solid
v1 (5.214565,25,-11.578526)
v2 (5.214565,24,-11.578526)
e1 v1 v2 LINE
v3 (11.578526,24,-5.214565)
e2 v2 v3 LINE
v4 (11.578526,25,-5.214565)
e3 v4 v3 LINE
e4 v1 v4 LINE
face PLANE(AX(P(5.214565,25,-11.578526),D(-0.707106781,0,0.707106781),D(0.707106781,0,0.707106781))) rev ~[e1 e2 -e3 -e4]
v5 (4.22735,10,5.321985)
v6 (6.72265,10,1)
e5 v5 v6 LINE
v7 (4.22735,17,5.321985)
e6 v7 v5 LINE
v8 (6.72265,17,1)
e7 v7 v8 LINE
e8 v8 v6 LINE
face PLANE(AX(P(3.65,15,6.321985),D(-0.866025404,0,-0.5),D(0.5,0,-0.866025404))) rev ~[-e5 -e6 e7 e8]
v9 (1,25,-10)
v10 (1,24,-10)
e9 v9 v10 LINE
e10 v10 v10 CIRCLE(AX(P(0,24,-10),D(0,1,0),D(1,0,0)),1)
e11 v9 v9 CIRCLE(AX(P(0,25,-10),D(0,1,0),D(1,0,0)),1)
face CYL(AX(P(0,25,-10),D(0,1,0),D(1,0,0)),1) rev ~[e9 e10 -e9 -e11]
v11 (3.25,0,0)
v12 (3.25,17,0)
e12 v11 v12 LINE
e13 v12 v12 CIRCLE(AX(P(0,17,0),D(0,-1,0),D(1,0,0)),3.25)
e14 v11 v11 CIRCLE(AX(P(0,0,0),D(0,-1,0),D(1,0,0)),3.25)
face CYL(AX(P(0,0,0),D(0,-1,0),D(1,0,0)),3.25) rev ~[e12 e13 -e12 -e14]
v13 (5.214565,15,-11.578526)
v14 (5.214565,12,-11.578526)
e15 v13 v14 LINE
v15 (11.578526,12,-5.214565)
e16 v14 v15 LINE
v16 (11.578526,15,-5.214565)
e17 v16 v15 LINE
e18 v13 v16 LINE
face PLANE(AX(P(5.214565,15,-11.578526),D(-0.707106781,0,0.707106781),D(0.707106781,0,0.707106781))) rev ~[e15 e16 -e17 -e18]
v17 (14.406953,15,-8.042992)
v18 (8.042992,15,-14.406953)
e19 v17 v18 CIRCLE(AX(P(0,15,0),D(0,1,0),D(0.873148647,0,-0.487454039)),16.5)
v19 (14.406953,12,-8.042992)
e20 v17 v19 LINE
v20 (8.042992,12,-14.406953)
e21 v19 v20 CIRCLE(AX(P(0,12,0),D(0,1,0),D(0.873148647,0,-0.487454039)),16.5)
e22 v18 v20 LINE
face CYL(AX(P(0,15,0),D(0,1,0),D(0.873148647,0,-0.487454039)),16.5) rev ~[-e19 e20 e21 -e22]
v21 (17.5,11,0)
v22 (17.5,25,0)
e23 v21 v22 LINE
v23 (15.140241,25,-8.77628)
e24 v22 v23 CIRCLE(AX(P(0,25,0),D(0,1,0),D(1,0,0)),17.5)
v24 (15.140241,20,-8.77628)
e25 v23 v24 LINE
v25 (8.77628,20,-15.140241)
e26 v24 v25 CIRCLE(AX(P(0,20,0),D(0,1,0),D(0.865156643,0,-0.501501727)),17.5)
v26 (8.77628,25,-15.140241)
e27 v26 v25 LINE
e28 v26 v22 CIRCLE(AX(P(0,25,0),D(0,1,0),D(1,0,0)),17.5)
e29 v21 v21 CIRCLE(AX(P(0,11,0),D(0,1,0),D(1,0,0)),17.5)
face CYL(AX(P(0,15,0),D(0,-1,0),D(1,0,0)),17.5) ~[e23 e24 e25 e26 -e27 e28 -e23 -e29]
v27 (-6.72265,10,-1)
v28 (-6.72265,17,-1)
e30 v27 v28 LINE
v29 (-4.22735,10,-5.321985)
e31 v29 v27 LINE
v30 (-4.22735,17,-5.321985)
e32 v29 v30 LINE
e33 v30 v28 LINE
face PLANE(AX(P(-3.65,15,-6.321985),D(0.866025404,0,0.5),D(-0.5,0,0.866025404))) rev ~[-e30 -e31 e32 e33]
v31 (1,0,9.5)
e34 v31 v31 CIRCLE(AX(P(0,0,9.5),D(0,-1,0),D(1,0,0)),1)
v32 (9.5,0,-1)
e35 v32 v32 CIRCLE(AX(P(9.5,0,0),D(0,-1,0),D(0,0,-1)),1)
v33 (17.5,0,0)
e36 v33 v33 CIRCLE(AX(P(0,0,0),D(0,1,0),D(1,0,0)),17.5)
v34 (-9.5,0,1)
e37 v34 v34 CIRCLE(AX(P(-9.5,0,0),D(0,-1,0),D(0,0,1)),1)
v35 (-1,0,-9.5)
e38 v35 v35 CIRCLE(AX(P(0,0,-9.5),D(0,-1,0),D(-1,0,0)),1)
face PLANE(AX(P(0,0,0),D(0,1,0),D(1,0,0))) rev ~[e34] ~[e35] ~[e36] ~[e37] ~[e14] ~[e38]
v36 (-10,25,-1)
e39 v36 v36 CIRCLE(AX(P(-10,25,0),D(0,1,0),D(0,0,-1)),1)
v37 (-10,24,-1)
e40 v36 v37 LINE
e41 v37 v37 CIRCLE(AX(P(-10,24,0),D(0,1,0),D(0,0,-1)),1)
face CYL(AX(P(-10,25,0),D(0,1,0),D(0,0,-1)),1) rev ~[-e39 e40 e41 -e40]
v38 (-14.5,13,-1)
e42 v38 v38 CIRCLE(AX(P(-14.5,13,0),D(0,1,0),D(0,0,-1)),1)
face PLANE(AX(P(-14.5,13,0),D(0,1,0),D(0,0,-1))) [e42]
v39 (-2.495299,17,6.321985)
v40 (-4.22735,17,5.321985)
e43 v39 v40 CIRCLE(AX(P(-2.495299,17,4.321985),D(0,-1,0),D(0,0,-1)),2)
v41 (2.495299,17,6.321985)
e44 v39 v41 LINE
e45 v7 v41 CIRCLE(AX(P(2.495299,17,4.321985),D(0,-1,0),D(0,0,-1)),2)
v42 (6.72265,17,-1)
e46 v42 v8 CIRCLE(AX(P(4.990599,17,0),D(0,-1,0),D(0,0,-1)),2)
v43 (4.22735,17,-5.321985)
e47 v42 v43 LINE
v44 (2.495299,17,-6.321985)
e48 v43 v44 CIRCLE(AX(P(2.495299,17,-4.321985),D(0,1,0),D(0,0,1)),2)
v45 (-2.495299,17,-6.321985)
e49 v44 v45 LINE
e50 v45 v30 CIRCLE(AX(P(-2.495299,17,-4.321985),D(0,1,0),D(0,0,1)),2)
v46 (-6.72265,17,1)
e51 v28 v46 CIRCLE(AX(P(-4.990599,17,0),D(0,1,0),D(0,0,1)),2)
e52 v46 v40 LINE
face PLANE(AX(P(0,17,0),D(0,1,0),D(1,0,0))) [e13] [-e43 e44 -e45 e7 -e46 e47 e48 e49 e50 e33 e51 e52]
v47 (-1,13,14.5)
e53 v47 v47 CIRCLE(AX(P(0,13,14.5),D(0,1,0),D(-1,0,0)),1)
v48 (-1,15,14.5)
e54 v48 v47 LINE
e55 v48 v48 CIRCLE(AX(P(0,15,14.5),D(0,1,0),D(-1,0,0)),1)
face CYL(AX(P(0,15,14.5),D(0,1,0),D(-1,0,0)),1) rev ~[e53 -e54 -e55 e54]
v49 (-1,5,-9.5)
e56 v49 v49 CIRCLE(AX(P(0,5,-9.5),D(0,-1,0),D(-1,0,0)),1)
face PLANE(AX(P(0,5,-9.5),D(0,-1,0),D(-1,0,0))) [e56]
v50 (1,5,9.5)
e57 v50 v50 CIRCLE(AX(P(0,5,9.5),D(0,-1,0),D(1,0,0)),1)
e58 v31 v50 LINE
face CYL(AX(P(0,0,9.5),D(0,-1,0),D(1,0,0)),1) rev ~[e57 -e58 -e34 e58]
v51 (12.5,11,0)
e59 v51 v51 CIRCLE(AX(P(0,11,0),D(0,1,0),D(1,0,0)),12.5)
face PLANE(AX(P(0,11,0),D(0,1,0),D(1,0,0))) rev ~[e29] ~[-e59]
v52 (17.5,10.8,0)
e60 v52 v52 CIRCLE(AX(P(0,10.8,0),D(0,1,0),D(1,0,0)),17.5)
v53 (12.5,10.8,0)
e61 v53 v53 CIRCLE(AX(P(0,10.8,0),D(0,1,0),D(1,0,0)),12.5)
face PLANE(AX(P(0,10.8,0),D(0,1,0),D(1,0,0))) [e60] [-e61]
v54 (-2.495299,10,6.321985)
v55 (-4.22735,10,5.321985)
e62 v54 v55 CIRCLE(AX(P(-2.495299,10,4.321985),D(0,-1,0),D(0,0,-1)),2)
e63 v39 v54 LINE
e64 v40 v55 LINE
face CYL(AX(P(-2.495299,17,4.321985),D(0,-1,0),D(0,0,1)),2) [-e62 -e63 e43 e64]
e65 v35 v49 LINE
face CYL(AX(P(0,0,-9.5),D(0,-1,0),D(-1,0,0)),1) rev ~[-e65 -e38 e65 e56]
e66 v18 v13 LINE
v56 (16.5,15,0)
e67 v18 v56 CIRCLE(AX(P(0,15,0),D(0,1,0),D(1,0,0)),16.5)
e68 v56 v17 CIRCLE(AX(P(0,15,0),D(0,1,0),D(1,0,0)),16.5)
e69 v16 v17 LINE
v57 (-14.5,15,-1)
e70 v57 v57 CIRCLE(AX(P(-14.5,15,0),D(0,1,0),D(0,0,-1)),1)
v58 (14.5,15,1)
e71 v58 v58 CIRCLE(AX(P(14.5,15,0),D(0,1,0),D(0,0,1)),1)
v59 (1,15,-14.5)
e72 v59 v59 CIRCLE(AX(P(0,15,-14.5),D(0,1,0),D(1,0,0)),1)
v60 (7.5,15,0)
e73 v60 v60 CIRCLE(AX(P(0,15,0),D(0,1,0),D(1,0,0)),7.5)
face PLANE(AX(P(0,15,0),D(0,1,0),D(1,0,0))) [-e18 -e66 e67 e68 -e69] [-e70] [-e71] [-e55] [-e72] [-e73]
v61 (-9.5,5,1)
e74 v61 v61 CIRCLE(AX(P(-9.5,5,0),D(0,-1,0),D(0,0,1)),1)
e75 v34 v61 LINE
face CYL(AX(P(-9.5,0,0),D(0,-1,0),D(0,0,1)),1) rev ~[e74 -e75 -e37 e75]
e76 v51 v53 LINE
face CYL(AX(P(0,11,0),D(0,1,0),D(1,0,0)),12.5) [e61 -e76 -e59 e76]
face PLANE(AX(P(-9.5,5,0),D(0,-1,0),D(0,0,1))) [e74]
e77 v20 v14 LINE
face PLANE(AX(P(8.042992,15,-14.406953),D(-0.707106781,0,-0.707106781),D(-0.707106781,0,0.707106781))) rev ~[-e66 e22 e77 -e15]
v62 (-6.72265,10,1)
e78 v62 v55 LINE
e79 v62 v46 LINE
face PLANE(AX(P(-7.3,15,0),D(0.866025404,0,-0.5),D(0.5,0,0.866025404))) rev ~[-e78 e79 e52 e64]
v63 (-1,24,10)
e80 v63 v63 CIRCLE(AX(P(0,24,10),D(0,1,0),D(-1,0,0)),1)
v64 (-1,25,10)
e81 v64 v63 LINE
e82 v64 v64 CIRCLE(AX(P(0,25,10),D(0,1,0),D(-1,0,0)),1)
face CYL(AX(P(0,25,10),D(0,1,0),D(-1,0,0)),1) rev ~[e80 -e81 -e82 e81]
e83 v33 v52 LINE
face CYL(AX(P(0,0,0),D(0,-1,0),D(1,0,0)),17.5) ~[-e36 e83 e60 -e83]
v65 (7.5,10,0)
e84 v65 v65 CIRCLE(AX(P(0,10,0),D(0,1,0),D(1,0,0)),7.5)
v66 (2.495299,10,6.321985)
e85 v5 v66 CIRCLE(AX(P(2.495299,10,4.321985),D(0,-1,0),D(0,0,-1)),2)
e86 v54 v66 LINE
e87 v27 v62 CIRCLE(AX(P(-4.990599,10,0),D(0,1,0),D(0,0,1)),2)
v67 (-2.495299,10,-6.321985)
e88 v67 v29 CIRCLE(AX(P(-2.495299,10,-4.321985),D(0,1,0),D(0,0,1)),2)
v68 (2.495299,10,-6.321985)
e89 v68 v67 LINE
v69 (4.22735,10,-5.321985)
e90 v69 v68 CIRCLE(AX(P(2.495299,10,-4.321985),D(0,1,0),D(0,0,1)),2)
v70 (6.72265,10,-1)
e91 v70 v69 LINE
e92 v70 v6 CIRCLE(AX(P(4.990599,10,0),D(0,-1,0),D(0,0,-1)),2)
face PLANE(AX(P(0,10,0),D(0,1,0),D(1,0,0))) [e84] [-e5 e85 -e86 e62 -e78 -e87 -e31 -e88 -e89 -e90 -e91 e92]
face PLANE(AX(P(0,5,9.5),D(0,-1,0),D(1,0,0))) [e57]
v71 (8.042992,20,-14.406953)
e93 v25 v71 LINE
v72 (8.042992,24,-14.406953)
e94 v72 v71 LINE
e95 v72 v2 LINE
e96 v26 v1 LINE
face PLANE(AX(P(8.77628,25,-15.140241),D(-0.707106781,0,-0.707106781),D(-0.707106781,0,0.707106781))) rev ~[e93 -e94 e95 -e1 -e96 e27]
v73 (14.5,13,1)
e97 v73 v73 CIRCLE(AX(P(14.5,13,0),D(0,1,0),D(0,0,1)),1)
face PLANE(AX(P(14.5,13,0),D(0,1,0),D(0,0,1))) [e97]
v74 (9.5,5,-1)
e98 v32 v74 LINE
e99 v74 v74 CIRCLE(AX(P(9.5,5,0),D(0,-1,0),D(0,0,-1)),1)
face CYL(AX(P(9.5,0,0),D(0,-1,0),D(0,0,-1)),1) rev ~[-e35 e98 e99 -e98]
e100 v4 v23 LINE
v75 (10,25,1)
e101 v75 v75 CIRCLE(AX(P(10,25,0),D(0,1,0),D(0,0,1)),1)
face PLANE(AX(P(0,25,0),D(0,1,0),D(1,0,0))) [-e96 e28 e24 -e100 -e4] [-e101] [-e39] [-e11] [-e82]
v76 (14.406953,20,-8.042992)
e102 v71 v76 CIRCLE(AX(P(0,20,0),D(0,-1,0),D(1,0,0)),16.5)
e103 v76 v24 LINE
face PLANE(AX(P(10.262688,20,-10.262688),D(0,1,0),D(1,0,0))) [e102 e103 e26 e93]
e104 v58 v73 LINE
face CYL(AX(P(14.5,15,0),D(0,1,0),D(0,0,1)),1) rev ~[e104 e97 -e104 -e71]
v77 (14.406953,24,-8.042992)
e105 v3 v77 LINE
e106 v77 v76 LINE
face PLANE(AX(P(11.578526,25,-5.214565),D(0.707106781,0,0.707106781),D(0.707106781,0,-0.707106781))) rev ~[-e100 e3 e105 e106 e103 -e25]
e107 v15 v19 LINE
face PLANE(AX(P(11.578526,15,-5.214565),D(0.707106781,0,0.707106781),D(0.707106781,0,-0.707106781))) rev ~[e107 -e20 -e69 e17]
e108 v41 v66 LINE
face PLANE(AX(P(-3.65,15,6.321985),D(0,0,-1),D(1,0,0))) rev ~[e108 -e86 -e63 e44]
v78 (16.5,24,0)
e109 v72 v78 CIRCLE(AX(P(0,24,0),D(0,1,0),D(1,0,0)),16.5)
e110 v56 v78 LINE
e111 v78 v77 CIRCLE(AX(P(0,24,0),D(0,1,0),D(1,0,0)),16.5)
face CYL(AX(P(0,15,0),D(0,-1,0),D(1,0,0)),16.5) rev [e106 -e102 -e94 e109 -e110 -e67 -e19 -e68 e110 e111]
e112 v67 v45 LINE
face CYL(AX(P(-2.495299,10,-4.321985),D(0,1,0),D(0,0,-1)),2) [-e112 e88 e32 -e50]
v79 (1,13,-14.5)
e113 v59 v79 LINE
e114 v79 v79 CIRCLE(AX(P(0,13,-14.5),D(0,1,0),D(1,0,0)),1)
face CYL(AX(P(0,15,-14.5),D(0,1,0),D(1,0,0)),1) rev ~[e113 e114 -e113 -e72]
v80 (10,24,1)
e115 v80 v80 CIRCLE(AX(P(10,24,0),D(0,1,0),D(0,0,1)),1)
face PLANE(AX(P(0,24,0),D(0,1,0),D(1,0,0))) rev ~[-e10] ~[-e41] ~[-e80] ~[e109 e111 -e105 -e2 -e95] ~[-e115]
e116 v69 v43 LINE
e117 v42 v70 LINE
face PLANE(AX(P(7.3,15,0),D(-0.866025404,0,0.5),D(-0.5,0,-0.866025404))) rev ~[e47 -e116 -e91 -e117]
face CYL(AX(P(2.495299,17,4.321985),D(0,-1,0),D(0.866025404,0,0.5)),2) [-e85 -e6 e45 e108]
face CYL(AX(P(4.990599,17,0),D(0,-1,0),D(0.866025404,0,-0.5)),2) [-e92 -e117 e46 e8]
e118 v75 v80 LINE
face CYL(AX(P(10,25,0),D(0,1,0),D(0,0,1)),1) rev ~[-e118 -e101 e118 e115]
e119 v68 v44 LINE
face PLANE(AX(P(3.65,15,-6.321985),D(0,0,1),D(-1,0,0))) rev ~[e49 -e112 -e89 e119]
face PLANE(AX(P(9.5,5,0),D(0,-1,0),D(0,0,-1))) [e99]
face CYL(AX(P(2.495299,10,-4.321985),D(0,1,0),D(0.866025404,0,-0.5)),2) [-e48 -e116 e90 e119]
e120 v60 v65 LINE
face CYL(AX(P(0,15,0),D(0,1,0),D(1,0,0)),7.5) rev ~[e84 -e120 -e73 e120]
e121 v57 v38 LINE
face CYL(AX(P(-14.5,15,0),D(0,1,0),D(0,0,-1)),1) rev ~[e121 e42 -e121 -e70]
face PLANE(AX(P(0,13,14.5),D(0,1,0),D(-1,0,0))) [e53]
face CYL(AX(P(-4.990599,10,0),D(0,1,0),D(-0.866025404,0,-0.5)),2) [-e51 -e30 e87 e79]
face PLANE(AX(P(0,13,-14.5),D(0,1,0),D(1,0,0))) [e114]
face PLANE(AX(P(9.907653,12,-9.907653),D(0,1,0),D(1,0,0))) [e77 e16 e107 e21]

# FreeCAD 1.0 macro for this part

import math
import FreeCAD as App
import Part
import Sketcher
Q = App.Units.Quantity


def edges_at(feature, points):
    """Names of the edges that pass closest to the given points."""
    edges = feature.Shape.Edges
    near = lambda p: min(range(len(edges)), key=lambda i: edges[i].distToShape(Part.Vertex(*p))[0])
    return sorted({f"Edge{near(p) + 1}" for p in points})


def add_polygon(sketch, points):
    """Adds a closed chain of lines whose ends are joined by coincident constraints."""
    first, n = sketch.GeometryCount, len(points)
    for a, b in zip(points, points[1:] + points[:1]):
        sketch.addGeometry(Part.LineSegment(App.Vector(*a, 0), App.Vector(*b, 0)), False)
    for i in range(n):
        sketch.addConstraint(Sketcher.Constraint("Coincident", first + i, 2, first + (i + 1) % n, 1))

doc = App.newDocument("Part")
body = doc.addObject("PartDesign::Body", "Body")

# Sketch on XZ plane
sketch1 = body.newObject("Sketcher::SketchObject", "Sketch")
sketch1.AttachmentSupport = (doc.getObject("XZ_Plane"), [""])
sketch1.MapMode = "FlatFace"
sketch1.addGeometry(Part.Circle(App.Vector(0, 0, 0), App.Vector(0, 0, 1), 18), False)
sketch1.addConstraint([
    Sketcher.Constraint("Coincident", 0, 3, -1, 1),
    Sketcher.Constraint("Diameter", 0, Q("35 mm")),
])
pad1 = body.newObject("PartDesign::Pad", "Pad")
pad1.Profile = sketch1
pad1.Length = 15
pad1.Reversed = True

# Sketch on XZ plane
sketch2 = body.newObject("Sketcher::SketchObject", "Sketch001")
sketch2.AttachmentSupport = (doc.getObject("XZ_Plane"), [""])
sketch2.MapMode = "FlatFace"
sketch2.AttachmentOffset = App.Placement(App.Vector(0, 0, -15), App.Rotation())
add_polygon(sketch2, [(7, 0), (4, -6), (-4, -6), (-7, 0), (-4, 6), (4, 6)])  # lines 0-5
sketch2.addConstraint([
    Sketcher.Constraint("Horizontal", 1),
    Sketcher.Constraint("Horizontal", 4),
    Sketcher.Constraint("Symmetric", 0, 2, 3, 2, -1, 1),
    Sketcher.Constraint("Symmetric", 2, 2, 5, 2, -1, 1),
    Sketcher.Constraint("PointOnObject", 2, 2, -1),
    Sketcher.Constraint("Parallel", 2, 5),
    Sketcher.Constraint("Vertical", 1, 2, 3, 2),
    Sketcher.Constraint("Angle", 0, Q("-120 deg")),
    Sketcher.Constraint("DistanceX", 1, 2, 1, 1, Q("7.3 mm")),
    Sketcher.Constraint("Distance", 0, Q("7.3 mm")),
])
pad2 = body.newObject("PartDesign::Pad", "Pad001")
pad2.Profile = sketch2
pad2.Length = 2
pad2.Reversed = True

# Sketch on XZ plane
sketch3 = body.newObject("Sketcher::SketchObject", "Sketch002")
sketch3.AttachmentSupport = (doc.getObject("XZ_Plane"), [""])
sketch3.MapMode = "FlatFace"
sketch3.addGeometry(Part.Circle(App.Vector(0, 0, 0), App.Vector(0, 0, 1), 3.2), False)
sketch3.addConstraint([
    Sketcher.Constraint("Coincident", 0, 3, -1, 1),
    Sketcher.Constraint("Diameter", 0, Q("6.5 mm")),
])
pocket1 = body.newObject("PartDesign::Pocket", "Pocket")
pocket1.Profile = sketch3
pocket1.Type = "UpToFirst"

# Sketch on XZ plane
sketch4 = body.newObject("Sketcher::SketchObject", "Sketch003")
sketch4.AttachmentSupport = (doc.getObject("XZ_Plane"), [""])
sketch4.MapMode = "FlatFace"
sketch4.addGeometry(Part.Circle(App.Vector(0, 9.5, 0), App.Vector(0, 0, 1), 1), False)
sketch4.addConstraint([
    Sketcher.Constraint("PointOnObject", 0, 3, -2),
    Sketcher.Constraint("Diameter", 0, Q("2 mm")),
    Sketcher.Constraint("DistanceY", -1, 1, 0, 3, Q("9.5 mm")),
])
pocket2 = body.newObject("PartDesign::Pocket", "Pocket001")
pocket2.Profile = sketch4
pocket2.Length = 5
doc.recompute()

polarpattern = body.newObject("PartDesign::PolarPattern", "PolarPattern")
polarpattern.Originals = [pocket2]
polarpattern.Axis = (doc.getObject("Y_Axis"), [""])
polarpattern.Angle = 360
polarpattern.Occurrences = 4
body.Tip = polarpattern

# Sketch on XZ plane
sketch5 = body.newObject("Sketcher::SketchObject", "Sketch004")
sketch5.AttachmentSupport = (doc.getObject("XZ_Plane"), [""])
sketch5.MapMode = "FlatFace"
sketch5.AttachmentOffset = App.Placement(App.Vector(0, 0, -15), App.Rotation())
sketch5.addGeometry(Part.Circle(App.Vector(0, -14.5, 0), App.Vector(0, 0, 1), 1), False)
sketch5.addConstraint([
    Sketcher.Constraint("PointOnObject", 0, 3, -2),
    Sketcher.Constraint("Diameter", 0, Q("2 mm")),
    Sketcher.Constraint("DistanceY", 0, 3, -1, 1, Q("14.5 mm")),
])
pocket3 = body.newObject("PartDesign::Pocket", "Pocket002")
pocket3.Profile = sketch5
pocket3.Length = 2
pocket3.Reversed = True
doc.recompute()

polarpattern2 = body.newObject("PartDesign::PolarPattern", "PolarPattern001")
polarpattern2.Originals = [pocket3]
polarpattern2.Axis = (doc.getObject("Y_Axis"), [""])
polarpattern2.Angle = 360
polarpattern2.Occurrences = 4
body.Tip = polarpattern2

# Sketch on XZ plane
sketch6 = body.newObject("Sketcher::SketchObject", "Sketch005")
sketch6.AttachmentSupport = (doc.getObject("XZ_Plane"), [""])
sketch6.MapMode = "FlatFace"
sketch6.AttachmentOffset = App.Placement(App.Vector(0, 0, -15), App.Rotation())
sketch6.addGeometry(Part.Circle(App.Vector(0, 0, 0), App.Vector(0, 0, 1), 8), False)  # 0
add_polygon(sketch6, [(4, -6), (7, 0), (4, 6), (-4, 6), (-7, 0), (-4, -6)])  # lines 1-6
sketch6.addConstraint([
    Sketcher.Constraint("Horizontal", 3),
    Sketcher.Constraint("Horizontal", 6),
    Sketcher.Constraint("Coincident", 0, 3, -1, 1),
    Sketcher.Constraint("Symmetric", 1, 2, 4, 2, -1, 1),
    Sketcher.Constraint("Symmetric", 2, 2, 5, 2, -1, 1),
    Sketcher.Constraint("PointOnObject", 1, 2, -1),
    Sketcher.Constraint("Parallel", 1, 4),
    Sketcher.Constraint("Vertical", 3, 2, 5, 2),
    Sketcher.Constraint("Diameter", 0, Q("15 mm")),
    Sketcher.Constraint("Angle", 1, Q("60 deg")),
    Sketcher.Constraint("DistanceX", 3, 2, 3, 1, Q("7.3 mm")),
    Sketcher.Constraint("Distance", 1, Q("7.3 mm")),
])
pocket4 = body.newObject("PartDesign::Pocket", "Pocket003")
pocket4.Profile = sketch6
pocket4.Length = 5
pocket4.Reversed = True

# Sketch on XZ plane
sketch7 = body.newObject("Sketcher::SketchObject", "Sketch006")
sketch7.AttachmentSupport = (doc.getObject("XZ_Plane"), [""])
sketch7.MapMode = "FlatFace"
sketch7.AttachmentOffset = App.Placement(App.Vector(0, 0, -11), App.Rotation())
sketch7.addGeometry([
    Part.Circle(App.Vector(0, 0, 0), App.Vector(0, 0, 1), 18),
    Part.Circle(App.Vector(0, 0, 0), App.Vector(0, 0, 1), 12),
], False)
sketch7.addConstraint([
    Sketcher.Constraint("Coincident", 0, 3, -1, 1),
    Sketcher.Constraint("Coincident", 1, 3, -1, 1),
    Sketcher.Constraint("Diameter", 0, Q("35 mm")),
    Sketcher.Constraint("Diameter", 1, Q("25 mm")),
])
pocket5 = body.newObject("PartDesign::Pocket", "Pocket004")
pocket5.Profile = sketch7
pocket5.Length = 0.2
pocket5.Reversed = True
doc.recompute()

fillet = body.newObject("PartDesign::Fillet", "Fillet")
fillet.Base = (pocket5, edges_at(pocket5, [
    (-7.3, 13.5, 0),
    (-3.65, 13.5, 6.322),
    (3.65, 13.5, 6.322),
    (7.3, 13.5, 0),
    (3.65, 13.5, -6.322),
    (-3.65, 13.5, -6.322),
]))
fillet.Radius = 2

# Sketch on XZ plane
sketch8 = body.newObject("Sketcher::SketchObject", "Sketch007")
sketch8.AttachmentSupport = (doc.getObject("XZ_Plane"), [""])
sketch8.MapMode = "FlatFace"
sketch8.AttachmentOffset = App.Placement(App.Vector(0, 0, -15), App.Rotation())
sketch8.addGeometry([
    Part.LineSegment(App.Vector(8, -14.4, 0), App.Vector(5.2, -11.6, 0)),
    Part.LineSegment(App.Vector(5.2, -11.6, 0), App.Vector(11.6, -5.2, 0)),
    Part.LineSegment(App.Vector(11.6, -5.2, 0), App.Vector(14.4, -8, 0)),
    Part.ArcOfCircle(Part.Circle(App.Vector(0, 0, 0), App.Vector(0, 0, 1), 16.5), math.radians(-61), math.radians(-29)),
], False)
sketch8.addConstraint([
    Sketcher.Constraint("Coincident", 0, 2, 1, 1),
    Sketcher.Constraint("Coincident", 1, 2, 2, 1),
    Sketcher.Constraint("Coincident", 2, 2, 3, 2),
    Sketcher.Constraint("Coincident", 3, 1, 0, 1),
    Sketcher.Constraint("Coincident", 3, 3, -1, 1),
    Sketcher.Constraint("Perpendicular", 0, 1),
    Sketcher.Constraint("Perpendicular", 1, 2),
    Sketcher.Constraint("Equal", 0, 2),
    Sketcher.Constraint("Radius", 3, Q("16.5 mm")),
    Sketcher.Constraint("Angle", 0, Q("135 deg")),
    Sketcher.Constraint("Distance", 0, Q("4 mm")),
    Sketcher.Constraint("Distance", 1, Q("9 mm")),
])
pocket6 = body.newObject("PartDesign::Pocket", "Pocket005")
pocket6.Profile = sketch8
pocket6.Length = 3
pocket6.Reversed = True

# Sketch on XZ plane
sketch9 = body.newObject("Sketcher::SketchObject", "Sketch008")
sketch9.AttachmentSupport = (doc.getObject("XZ_Plane"), [""])
sketch9.MapMode = "FlatFace"
sketch9.AttachmentOffset = App.Placement(App.Vector(0, 0, -15), App.Rotation())
sketch9.addGeometry([
    Part.Circle(App.Vector(0, 0, 0), App.Vector(0, 0, 1), 18),
    Part.Circle(App.Vector(0, 0, 0), App.Vector(0, 0, 1), 16),
], False)
sketch9.addConstraint([
    Sketcher.Constraint("Coincident", 0, 3, -1, 1),
    Sketcher.Constraint("Coincident", 1, 3, -1, 1),
    Sketcher.Constraint("Diameter", 0, Q("35 mm")),
    Sketcher.Constraint("Diameter", 1, Q("33 mm")),
])
pad3 = body.newObject("PartDesign::Pad", "Pad002")
pad3.Profile = sketch9
pad3.Length = 10
pad3.Reversed = True

# Sketch on XZ plane
sketch10 = body.newObject("Sketcher::SketchObject", "Sketch009")
sketch10.AttachmentSupport = (doc.getObject("XZ_Plane"), [""])
sketch10.MapMode = "FlatFace"
sketch10.AttachmentOffset = App.Placement(App.Vector(0, 0, -25), App.Rotation())
sketch10.addGeometry(Part.Circle(App.Vector(0, 0, 0), App.Vector(0, 0, 1), 16), False)
sketch10.addConstraint([
    Sketcher.Constraint("Coincident", 0, 3, -1, 1),
    Sketcher.Constraint("Diameter", 0, Q("33 mm")),
])
pad4 = body.newObject("PartDesign::Pad", "Pad003")
pad4.Profile = sketch10
pad4.Length = 1

# Sketch on XZ plane
sketch11 = body.newObject("Sketcher::SketchObject", "Sketch010")
sketch11.AttachmentSupport = (doc.getObject("XZ_Plane"), [""])
sketch11.MapMode = "FlatFace"
sketch11.AttachmentOffset = App.Placement(App.Vector(0, 0, -25), App.Rotation())
sketch11.addGeometry([
    Part.LineSegment(App.Vector(5, -12, 0), App.Vector(12, -5, 0)),
    Part.LineSegment(App.Vector(12, -5, 0), App.Vector(15, -9, 0)),
    Part.ArcOfCircle(Part.Circle(App.Vector(0, 0, 0), App.Vector(0, 0, 1), 17), math.radians(-60), math.radians(-30)),
    Part.LineSegment(App.Vector(9, -15, 0), App.Vector(5, -12, 0)),
], False)
sketch11.addConstraint([
    Sketcher.Constraint("Coincident", 0, 2, 1, 1),
    Sketcher.Constraint("Coincident", 1, 2, 2, 2),
    Sketcher.Constraint("Coincident", 2, 1, 3, 1),
    Sketcher.Constraint("Coincident", 3, 2, 0, 1),
    Sketcher.Constraint("Coincident", 2, 3, -1, 1),
    Sketcher.Constraint("Perpendicular", 0, 1),
    Sketcher.Constraint("Parallel", 1, 3),
    Sketcher.Constraint("Equal", 1, 3),
    Sketcher.Constraint("Radius", 2, Q("17.5 mm")),
    Sketcher.Constraint("Angle", 0, Q("45 deg")),
    Sketcher.Constraint("Distance", 0, Q("9 mm")),
    Sketcher.Constraint("Distance", 1, Q("5.037027 mm")),
])
pocket7 = body.newObject("PartDesign::Pocket", "Pocket006")
pocket7.Profile = sketch11
pocket7.Length = 5
pocket7.Reversed = True

# Sketch on XZ plane
sketch12 = body.newObject("Sketcher::SketchObject", "Sketch011")
sketch12.AttachmentSupport = (doc.getObject("XZ_Plane"), [""])
sketch12.MapMode = "FlatFace"
sketch12.AttachmentOffset = App.Placement(App.Vector(0, 0, -25), App.Rotation())
sketch12.addGeometry(Part.Circle(App.Vector(0, -10, 0), App.Vector(0, 0, 1), 1), False)
sketch12.addConstraint([
    Sketcher.Constraint("PointOnObject", 0, 3, -2),
    Sketcher.Constraint("Diameter", 0, Q("2 mm")),
    Sketcher.Constraint("DistanceY", 0, 3, -1, 1, Q("10 mm")),
])
pocket8 = body.newObject("PartDesign::Pocket", "Pocket007")
pocket8.Profile = sketch12
pocket8.Length = 1
pocket8.Reversed = True
doc.recompute()

polarpattern3 = body.newObject("PartDesign::PolarPattern", "PolarPattern002")
polarpattern3.Originals = [pocket8]
polarpattern3.Axis = (doc.getObject("Y_Axis"), [""])
polarpattern3.Angle = 360
polarpattern3.Occurrences = 4
body.Tip = polarpattern3

doc.recompute()
